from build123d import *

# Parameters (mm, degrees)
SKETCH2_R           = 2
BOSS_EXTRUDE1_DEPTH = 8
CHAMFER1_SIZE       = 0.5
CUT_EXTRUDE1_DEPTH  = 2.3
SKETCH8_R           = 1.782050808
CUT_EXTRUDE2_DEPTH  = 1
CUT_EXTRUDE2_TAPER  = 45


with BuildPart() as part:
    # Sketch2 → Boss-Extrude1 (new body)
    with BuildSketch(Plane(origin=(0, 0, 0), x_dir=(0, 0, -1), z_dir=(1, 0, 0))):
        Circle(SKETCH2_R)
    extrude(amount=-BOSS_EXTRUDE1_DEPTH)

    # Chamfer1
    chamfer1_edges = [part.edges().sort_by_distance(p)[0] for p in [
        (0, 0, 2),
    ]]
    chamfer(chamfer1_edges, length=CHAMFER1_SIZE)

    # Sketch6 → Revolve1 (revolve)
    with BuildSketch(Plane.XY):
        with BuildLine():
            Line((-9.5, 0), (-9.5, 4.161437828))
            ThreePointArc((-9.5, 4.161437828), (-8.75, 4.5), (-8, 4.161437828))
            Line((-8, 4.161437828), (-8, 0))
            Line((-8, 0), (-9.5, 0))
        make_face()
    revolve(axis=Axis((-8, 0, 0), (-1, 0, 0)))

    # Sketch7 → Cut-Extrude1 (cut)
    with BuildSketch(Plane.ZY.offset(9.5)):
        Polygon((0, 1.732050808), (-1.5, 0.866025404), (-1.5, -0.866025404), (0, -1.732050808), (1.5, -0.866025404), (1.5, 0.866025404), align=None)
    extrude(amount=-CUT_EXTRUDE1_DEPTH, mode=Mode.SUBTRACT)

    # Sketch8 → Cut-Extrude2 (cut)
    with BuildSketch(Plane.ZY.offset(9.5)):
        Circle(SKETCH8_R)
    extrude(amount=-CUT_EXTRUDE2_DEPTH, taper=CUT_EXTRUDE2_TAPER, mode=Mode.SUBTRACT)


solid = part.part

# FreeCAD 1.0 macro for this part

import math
import FreeCAD as App
import Part
import Sketcher
Q = App.Units.Quantity


def edges_at(feature, points):
    """Names of the edges that pass closest to the given points."""
    edges = feature.Shape.Edges
    near = lambda p: min(range(len(edges)), key=lambda i: edges[i].distToShape(Part.Vertex(*p))[0])
    return sorted({f"Edge{near(p) + 1}" for p in points})


def add_polygon(sketch, points):
    """Adds a closed chain of lines whose ends are joined by coincident constraints."""
    first, n = sketch.GeometryCount, len(points)
    for a, b in zip(points, points[1:] + points[:1]):
        sketch.addGeometry(Part.LineSegment(App.Vector(*a, 0), App.Vector(*b, 0)), False)
    for i in range(n):
        sketch.addConstraint(Sketcher.Constraint("Coincident", first + i, 2, first + (i + 1) % n, 1))

doc = App.newDocument("Part")
params = doc.addObject("Spreadsheet::Sheet", "Params")
for row, (alias, value) in enumerate([
    ("sketch1_diameter", "4 mm"),
    ("pad1_length", "8 mm"),
    ("chamfer_size", "0.5 mm"),
    ("sketch2_radius", "1 mm"),
    ("sketch2_width", "1.5 mm"),
    ("revolution_angle", "360 deg"),
    ("pocket1_length", "2.3 mm"),
    ("pocket2_length", "1 mm"),
    ("pocket2_taper", "-45 deg"),
], start=1):
    params.set(f"A{row}", alias)
    params.set(f"B{row}", "=" + value)
    params.setAlias(f"B{row}", alias)

body = doc.addObject("PartDesign::Body", "Body")

sketch1 = body.newObject("Sketcher::SketchObject", "Sketch")
sketch1.AttachmentSupport = (doc.getObject("YZ_Plane"), [""])
sketch1.MapMode = "FlatFace"
sketch1.addGeometry(Part.Circle(App.Vector(0, 0, 0), App.Vector(0, 0, 1), 2), False)
sketch1.addConstraint([
    Sketcher.Constraint("Coincident", 0, 3, -1, 1),
    Sketcher.Constraint("Diameter", 0, 4.0),
])
sketch1.setExpression("Constraints[1]", "Params.sketch1_diameter")
pad1 = body.newObject("PartDesign::Pad", "Pad")
pad1.Profile = sketch1
pad1.setExpression("Length", "Params.pad1_length")
pad1.Reversed = True
doc.recompute()

chamfer = body.newObject("PartDesign::Chamfer", "Chamfer")
chamfer.Base = (pad1, edges_at(pad1, [(0, 0, 2)]))
chamfer.setExpression("Size", "Params.chamfer_size")

sketch2 = body.newObject("Sketcher::SketchObject", "Sketch001")
sketch2.AttachmentSupport = (doc.getObject("XY_Plane"), [""])
sketch2.MapMode = "FlatFace"
sketch2.addGeometry([
    Part.LineSegment(App.Vector(-9.5, 4.2, 0), App.Vector(-9.5, 0, 0)),
    Part.LineSegment(App.Vector(-9.5, 0, 0), App.Vector(-8, 0, 0)),
    Part.LineSegment(App.Vector(-8, 0, 0), App.Vector(-8, 4.2, 0)),
    Part.ArcOfCircle(Part.Circle(App.Vector(-8.8, 3.5, 0), App.Vector(0, 0, 1), 1), math.radians(41), math.radians(139)),
], False)
sketch2.addConstraint([
    Sketcher.Constraint("Coincident", 0, 2, 1, 1),
    Sketcher.Constraint("Coincident", 1, 2, 2, 1),
    Sketcher.Constraint("Coincident", 2, 2, 3, 1),
    Sketcher.Constraint("Coincident", 3, 2, 0, 1),
    Sketcher.Constraint("Vertical", 0),
    Sketcher.Constraint("Horizontal", 1),
    Sketcher.Constraint("Vertical", 2),
    Sketcher.Constraint("PointOnObject", 0, 2, -1),
    Sketcher.Constraint("Horizontal", 2, 2, 3, 2),
    Sketcher.Constraint("Radius", 3, 1.0),
    Sketcher.Constraint("DistanceX", 1, 1, 1, 2, 1.5),
    Sketcher.Constraint("DistanceX", 1, 2, -1, 1, 8.0),
    Sketcher.Constraint("DistanceY", -1, 1, 3, 3, 3.5),
])
sketch2.setExpression("Constraints[9]", "Params.sketch2_radius")
sketch2.setExpression("Constraints[10]", "Params.sketch2_width")
revolution = body.newObject("PartDesign::Revolution", "Revolution")
revolution.Profile = sketch2
revolution.ReferenceAxis = (sketch2, ["H_Axis"])
revolution.setExpression("Angle", "Params.revolution_angle")

sketch3 = body.newObject("Sketcher::SketchObject", "Sketch002")
sketch3.AttachmentSupport = (doc.getObject("YZ_Plane"), [""])
sketch3.MapMode = "FlatFace"
sketch3.AttachmentOffset = App.Placement(App.Vector(0, 0, -9.5), App.Rotation())
add_polygon(sketch3, [(1.7, 0), (0.9, -1.5), (-0.9, -1.5), (-1.7, 0), (-0.9, 1.5), (0.9, 1.5)])
sketch3.addConstraint([
    Sketcher.Constraint("Horizontal", 1),
    Sketcher.Constraint("Horizontal", 4),
    Sketcher.Constraint("Symmetric", 0, 2, 3, 2, -1, 1),
    Sketcher.Constraint("Symmetric", 2, 2, 5, 2, -1, 1),
    Sketcher.Constraint("PointOnObject", 2, 2, -1),
    Sketcher.Constraint("Parallel", 2, 5),
    Sketcher.Constraint("Vertical", 1, 2, 3, 2),
    Sketcher.Constraint("Angle", 0, Q("-120 deg")),
    Sketcher.Constraint("DistanceY", 1, 2, 3, 2, 3.0),
    Sketcher.Constraint("DistanceX", 1, 2, 1, 1, 1.732051),
])
pocket1 = body.newObject("PartDesign::Pocket", "Pocket")
pocket1.Profile = sketch3
pocket1.setExpression("Length", "Params.pocket1_length")
pocket1.Reversed = True

sketch4 = body.newObject("Sketcher::SketchObject", "Sketch003")
sketch4.AttachmentSupport = (doc.getObject("YZ_Plane"), [""])
sketch4.MapMode = "FlatFace"
sketch4.AttachmentOffset = App.Placement(App.Vector(0, 0, -9.5), App.Rotation())
sketch4.addGeometry(Part.Circle(App.Vector(0, 0, 0), App.Vector(0, 0, 1), 1.8), False)
sketch4.addConstraint([
    Sketcher.Constraint("Coincident", 0, 3, -1, 1),
    Sketcher.Constraint("Diameter", 0, 3.564102),
])
pocket2 = body.newObject("PartDesign::Pocket", "Pocket001")
pocket2.Profile = sketch4
pocket2.setExpression("Length", "Params.pocket2_length")
pocket2.Reversed = True
pocket2.setExpression("TaperAngle", "Params.pocket2_taper")

doc.recompute()
